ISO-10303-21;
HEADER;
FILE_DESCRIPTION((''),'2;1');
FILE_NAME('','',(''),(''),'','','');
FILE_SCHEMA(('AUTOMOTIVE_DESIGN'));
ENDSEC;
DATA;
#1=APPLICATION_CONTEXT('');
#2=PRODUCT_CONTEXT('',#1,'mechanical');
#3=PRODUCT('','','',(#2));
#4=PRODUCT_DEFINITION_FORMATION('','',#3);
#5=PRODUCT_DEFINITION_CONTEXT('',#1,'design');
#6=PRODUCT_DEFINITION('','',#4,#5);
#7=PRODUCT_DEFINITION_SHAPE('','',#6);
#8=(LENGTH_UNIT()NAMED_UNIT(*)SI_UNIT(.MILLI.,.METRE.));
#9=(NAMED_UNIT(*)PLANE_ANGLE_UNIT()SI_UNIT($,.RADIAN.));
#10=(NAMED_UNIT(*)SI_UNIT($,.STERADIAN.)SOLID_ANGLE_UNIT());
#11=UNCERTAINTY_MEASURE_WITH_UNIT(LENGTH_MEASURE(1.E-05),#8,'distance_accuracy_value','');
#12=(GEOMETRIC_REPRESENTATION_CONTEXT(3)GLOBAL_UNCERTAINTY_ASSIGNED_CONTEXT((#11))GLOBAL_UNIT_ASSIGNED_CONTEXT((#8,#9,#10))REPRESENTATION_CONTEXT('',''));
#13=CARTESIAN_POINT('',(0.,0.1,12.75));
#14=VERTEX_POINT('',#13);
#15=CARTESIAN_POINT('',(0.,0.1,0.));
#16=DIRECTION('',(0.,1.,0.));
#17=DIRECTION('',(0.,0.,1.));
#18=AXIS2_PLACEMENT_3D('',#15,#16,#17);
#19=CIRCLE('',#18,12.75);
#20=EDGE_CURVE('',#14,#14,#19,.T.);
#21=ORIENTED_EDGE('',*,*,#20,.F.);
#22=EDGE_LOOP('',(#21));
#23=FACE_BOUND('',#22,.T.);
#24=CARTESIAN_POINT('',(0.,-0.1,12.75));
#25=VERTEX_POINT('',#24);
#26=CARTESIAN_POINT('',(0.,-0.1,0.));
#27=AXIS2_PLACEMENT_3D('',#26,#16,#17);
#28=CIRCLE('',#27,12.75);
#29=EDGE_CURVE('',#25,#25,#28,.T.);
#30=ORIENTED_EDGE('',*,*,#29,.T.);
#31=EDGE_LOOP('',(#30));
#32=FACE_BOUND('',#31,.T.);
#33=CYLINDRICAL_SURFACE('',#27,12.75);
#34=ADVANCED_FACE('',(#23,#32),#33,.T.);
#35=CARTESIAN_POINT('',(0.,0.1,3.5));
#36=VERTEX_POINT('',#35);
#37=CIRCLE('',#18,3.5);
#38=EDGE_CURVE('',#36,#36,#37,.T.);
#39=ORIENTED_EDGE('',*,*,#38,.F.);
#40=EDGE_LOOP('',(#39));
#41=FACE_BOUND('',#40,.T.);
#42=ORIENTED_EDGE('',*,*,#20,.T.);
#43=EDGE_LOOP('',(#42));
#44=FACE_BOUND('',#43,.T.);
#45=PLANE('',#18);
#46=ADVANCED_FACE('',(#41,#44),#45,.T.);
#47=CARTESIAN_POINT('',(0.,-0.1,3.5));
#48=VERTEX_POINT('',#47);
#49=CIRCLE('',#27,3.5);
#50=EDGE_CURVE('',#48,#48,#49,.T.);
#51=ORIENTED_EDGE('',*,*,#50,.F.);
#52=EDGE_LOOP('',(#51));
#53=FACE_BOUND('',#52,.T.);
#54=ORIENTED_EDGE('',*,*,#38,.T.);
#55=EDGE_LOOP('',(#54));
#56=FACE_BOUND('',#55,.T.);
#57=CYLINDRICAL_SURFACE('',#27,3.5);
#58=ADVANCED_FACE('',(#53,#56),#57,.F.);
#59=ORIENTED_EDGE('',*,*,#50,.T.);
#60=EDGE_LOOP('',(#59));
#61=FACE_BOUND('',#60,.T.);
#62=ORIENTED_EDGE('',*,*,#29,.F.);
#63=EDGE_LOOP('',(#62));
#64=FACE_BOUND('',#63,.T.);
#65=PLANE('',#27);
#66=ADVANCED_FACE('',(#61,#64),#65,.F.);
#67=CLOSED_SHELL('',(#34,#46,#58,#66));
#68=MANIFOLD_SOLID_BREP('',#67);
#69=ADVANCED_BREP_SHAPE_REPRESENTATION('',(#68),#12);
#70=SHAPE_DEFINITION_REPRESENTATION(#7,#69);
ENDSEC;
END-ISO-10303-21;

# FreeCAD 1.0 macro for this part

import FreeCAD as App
import Part
import Sketcher

V = App.Vector

doc = App.newDocument("Part")
body = doc.addObject("PartDesign::Body", "Body")

# Sketch on XZ plane
sketch1 = doc.addObject("Sketcher::SketchObject", "Sketch")
body.addObject(sketch1)
sketch1.AttachmentSupport = (doc.XZ_Plane, [""])
sketch1.MapMode = "FlatFace"
sketch1.addGeometry([
    Part.Circle(V(0, 0, 0), V(0, 0, 1), 12.8),
    Part.Circle(V(0, 0, 0), V(0, 0, 1), 3.5),
], False)
sketch1.addConstraint([
    Sketcher.Constraint("Coincident", 0, 3, -1, 1),
    Sketcher.Constraint("Coincident", 1, 3, -1, 1),
    Sketcher.Constraint("Diameter", 1, 7.0),
    Sketcher.Constraint("Diameter", 0, 25.5),
])
pad1 = doc.addObject("PartDesign::Pad", "Pad")
body.addObject(pad1)
pad1.Profile = sketch1
pad1.Type = "TwoLengths"
pad1.Length = 0.1
pad1.Length2 = 0.1
pad1.Reversed = True

doc.recompute()
